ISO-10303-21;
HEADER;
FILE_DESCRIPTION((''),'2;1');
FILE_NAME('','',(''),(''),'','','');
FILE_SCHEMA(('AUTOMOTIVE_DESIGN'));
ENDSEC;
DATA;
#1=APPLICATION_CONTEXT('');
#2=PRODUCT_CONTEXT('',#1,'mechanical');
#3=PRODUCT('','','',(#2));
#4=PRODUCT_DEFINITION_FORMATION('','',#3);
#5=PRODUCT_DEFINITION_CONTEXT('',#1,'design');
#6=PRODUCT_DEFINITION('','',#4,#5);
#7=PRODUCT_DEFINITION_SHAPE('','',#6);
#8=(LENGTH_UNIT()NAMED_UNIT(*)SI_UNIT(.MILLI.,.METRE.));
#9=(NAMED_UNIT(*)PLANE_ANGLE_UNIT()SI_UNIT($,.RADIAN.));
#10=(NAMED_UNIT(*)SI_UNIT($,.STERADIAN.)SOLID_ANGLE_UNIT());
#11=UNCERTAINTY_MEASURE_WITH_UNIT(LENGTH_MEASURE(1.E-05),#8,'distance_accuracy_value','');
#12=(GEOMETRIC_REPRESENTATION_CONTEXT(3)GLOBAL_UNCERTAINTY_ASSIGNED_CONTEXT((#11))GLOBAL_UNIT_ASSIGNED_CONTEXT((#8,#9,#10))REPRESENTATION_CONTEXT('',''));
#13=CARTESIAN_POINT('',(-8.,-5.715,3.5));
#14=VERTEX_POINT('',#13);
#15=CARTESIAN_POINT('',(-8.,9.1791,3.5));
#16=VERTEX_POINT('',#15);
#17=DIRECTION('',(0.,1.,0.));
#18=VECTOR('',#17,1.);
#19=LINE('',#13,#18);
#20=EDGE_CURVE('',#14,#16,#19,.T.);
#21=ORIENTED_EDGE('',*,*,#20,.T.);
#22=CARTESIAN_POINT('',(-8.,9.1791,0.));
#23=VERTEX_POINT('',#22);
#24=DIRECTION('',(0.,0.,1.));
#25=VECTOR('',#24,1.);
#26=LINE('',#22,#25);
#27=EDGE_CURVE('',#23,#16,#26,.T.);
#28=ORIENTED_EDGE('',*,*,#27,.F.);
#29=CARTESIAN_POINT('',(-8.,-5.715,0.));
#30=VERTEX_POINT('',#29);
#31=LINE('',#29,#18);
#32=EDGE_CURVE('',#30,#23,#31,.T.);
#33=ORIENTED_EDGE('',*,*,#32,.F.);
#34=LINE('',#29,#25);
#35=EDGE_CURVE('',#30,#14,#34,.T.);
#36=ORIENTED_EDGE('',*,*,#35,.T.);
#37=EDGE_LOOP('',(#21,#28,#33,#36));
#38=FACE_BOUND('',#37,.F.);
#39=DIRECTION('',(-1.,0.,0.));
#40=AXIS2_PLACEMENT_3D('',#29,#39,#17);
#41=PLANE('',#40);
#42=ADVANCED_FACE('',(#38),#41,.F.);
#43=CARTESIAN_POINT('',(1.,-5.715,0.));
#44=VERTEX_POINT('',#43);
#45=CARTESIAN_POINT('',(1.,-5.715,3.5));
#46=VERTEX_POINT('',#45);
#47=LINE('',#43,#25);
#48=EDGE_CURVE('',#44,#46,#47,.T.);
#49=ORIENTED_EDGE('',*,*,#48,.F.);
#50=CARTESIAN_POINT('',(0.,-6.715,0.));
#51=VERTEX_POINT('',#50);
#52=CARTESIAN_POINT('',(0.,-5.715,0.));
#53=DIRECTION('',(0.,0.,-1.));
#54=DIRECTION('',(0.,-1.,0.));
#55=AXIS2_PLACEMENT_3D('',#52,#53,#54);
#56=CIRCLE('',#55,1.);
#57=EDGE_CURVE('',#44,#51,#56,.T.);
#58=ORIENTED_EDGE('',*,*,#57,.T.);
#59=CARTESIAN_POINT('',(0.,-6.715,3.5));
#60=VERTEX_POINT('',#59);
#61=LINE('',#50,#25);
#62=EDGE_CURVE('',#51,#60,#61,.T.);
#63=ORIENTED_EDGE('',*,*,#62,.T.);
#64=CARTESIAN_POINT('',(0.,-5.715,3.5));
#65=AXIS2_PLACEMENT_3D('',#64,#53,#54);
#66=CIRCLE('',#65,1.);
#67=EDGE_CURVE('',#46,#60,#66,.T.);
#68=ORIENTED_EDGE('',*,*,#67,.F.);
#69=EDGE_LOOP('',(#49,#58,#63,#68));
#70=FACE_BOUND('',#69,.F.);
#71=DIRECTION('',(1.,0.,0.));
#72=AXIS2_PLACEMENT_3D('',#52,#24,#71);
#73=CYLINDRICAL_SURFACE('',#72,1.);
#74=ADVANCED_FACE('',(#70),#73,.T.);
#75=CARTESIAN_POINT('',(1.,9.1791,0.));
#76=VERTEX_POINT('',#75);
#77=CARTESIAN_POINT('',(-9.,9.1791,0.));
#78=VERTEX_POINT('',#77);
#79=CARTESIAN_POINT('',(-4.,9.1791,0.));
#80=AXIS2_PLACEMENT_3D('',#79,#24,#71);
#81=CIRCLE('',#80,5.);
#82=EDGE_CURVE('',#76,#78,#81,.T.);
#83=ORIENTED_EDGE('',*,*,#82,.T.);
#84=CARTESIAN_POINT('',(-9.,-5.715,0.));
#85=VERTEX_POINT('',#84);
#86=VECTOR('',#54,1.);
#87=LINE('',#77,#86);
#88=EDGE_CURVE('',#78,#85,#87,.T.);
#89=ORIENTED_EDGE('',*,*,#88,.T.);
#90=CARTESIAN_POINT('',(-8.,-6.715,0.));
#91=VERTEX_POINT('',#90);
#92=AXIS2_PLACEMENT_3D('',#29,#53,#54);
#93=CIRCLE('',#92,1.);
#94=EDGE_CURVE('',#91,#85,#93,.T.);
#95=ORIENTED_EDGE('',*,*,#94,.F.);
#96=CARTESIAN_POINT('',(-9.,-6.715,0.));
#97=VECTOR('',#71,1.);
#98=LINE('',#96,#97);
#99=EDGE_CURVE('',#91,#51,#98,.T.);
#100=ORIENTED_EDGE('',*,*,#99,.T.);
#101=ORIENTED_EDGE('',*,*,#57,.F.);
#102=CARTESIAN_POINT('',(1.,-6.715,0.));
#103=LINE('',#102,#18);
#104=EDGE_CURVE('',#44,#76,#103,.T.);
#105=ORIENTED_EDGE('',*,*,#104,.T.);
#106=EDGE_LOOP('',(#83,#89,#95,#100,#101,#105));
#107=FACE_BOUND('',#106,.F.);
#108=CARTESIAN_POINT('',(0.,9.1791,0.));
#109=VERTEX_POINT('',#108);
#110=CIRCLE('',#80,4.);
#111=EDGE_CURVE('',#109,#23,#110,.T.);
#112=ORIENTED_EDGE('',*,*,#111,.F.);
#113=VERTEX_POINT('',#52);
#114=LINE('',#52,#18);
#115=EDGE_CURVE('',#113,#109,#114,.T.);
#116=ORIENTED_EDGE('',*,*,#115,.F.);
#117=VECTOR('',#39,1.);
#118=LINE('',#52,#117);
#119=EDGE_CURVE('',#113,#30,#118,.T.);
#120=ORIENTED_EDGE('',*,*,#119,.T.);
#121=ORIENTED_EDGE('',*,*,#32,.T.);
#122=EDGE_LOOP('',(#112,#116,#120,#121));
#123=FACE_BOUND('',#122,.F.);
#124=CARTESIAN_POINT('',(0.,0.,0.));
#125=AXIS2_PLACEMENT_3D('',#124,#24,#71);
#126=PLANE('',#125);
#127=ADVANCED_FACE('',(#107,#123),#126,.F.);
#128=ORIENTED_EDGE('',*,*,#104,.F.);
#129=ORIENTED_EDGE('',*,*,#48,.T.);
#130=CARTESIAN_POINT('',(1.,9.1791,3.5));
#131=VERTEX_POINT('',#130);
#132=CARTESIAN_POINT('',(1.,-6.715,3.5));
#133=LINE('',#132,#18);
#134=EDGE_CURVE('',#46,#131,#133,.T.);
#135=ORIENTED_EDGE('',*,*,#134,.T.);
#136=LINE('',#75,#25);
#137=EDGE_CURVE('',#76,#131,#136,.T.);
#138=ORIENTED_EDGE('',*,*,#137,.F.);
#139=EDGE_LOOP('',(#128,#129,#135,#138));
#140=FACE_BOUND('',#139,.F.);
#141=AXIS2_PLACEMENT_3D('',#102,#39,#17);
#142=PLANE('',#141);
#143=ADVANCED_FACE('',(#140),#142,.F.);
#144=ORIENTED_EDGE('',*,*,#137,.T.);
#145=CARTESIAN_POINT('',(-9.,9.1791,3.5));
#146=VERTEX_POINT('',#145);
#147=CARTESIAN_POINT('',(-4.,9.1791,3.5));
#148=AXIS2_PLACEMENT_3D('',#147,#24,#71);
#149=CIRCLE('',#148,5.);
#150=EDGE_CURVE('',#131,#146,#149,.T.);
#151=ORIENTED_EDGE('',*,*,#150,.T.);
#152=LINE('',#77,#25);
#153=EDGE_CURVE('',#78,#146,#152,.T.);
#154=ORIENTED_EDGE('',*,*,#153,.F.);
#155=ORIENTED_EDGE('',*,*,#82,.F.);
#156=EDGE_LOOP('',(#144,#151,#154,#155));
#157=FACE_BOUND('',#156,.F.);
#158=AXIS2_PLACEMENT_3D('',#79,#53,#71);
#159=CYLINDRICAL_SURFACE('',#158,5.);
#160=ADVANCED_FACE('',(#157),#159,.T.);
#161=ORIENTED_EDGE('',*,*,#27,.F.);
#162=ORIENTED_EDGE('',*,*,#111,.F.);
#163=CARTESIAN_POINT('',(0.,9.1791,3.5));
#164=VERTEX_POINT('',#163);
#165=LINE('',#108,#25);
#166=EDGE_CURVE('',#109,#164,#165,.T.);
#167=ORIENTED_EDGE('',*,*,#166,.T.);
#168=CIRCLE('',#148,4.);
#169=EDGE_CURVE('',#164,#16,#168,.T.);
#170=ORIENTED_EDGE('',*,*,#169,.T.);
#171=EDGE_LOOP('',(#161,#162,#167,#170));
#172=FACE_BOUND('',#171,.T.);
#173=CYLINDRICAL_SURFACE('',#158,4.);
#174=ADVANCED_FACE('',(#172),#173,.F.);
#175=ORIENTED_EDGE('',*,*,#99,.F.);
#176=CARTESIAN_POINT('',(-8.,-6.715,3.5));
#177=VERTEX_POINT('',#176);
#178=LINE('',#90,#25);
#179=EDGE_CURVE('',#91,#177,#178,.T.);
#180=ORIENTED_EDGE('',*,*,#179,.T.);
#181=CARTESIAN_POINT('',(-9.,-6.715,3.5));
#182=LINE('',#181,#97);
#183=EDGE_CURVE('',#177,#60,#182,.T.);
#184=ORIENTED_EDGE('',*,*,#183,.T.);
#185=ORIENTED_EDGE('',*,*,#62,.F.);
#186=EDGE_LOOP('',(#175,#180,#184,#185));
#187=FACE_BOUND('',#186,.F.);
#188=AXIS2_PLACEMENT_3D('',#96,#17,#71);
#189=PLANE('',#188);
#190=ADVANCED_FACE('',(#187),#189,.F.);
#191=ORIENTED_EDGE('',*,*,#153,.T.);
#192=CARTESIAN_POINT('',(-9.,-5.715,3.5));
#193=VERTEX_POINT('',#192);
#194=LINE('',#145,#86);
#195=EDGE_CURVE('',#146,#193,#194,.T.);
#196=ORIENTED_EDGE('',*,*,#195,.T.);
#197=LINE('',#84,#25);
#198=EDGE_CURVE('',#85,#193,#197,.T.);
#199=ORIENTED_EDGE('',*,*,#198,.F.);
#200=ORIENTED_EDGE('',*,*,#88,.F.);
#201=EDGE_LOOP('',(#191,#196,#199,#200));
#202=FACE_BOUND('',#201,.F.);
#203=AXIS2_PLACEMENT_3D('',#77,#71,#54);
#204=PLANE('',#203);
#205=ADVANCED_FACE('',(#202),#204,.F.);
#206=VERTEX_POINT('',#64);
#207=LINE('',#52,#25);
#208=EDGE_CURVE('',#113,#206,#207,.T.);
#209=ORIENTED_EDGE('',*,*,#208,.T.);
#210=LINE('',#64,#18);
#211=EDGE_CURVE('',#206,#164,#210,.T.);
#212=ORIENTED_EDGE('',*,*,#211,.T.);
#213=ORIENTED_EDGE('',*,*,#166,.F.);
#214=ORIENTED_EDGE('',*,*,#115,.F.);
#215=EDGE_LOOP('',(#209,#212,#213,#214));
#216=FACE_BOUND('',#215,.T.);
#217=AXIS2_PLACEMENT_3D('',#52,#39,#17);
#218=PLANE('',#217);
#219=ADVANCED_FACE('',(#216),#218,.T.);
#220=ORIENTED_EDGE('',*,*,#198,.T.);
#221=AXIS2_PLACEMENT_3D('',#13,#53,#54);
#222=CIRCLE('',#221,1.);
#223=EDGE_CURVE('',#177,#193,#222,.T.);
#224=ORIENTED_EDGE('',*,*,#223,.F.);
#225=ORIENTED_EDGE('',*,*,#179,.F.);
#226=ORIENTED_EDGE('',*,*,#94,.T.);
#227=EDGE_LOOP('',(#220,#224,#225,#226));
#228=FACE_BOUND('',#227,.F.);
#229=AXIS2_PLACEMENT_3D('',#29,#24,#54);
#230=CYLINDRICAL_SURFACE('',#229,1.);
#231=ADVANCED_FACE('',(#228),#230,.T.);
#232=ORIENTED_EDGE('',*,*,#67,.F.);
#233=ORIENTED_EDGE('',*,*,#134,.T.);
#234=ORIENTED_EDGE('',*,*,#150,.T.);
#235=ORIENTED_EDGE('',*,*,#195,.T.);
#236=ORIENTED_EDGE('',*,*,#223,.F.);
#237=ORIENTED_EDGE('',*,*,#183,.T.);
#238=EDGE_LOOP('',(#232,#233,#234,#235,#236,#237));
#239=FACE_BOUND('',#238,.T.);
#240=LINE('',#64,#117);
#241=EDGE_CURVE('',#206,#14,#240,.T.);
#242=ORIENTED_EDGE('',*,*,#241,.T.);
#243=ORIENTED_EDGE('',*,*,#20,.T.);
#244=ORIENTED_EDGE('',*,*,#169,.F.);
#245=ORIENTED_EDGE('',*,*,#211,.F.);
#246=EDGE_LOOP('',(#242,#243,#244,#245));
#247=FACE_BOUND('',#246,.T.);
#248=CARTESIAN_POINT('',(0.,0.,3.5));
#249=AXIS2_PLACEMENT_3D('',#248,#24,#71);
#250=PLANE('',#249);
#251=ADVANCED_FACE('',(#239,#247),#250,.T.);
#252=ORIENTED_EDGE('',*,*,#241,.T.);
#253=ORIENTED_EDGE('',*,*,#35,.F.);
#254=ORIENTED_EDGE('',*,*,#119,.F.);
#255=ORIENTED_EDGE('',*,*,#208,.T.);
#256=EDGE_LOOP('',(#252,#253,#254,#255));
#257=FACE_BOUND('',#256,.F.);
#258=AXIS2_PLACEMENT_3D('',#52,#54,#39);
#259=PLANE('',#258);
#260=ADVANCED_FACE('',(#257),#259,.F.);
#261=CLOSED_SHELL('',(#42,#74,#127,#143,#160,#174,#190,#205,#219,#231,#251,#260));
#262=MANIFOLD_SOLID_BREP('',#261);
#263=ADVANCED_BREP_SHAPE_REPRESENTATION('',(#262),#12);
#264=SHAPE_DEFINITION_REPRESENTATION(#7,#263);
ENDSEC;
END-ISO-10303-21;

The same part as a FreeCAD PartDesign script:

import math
import FreeCAD as App
import Part
import Sketcher

V = App.Vector
Q = App.Units.Quantity


def edges_at(feature, points):
    """Names of the edges that pass closest to the given points."""
    edges = feature.Shape.Edges
    near = lambda p: min(range(len(edges)), key=lambda i: edges[i].distToShape(Part.Vertex(*p))[0])
    return sorted({f"Edge{near(p) + 1}" for p in points})

doc = App.newDocument("Part")
body = doc.addObject("PartDesign::Body", "Body")

# Sketch on XY plane
sketch1 = body.newObject("Sketcher::SketchObject", "Sketch")
sketch1.AttachmentSupport = (doc.getObject("XY_Plane"), [""])
sketch1.MapMode = "FlatFace"
sketch1.addGeometry([
    Part.ArcOfCircle(Part.Circle(V(-4, 9.1791, 0), V(0, 0, 1), 5), math.radians(0), math.radians(180)),  # 0
    Part.LineSegment(V(-9, 9.1791, 0), V(-9, -6.715, 0)),  # 1
    Part.LineSegment(V(-9, -6.715, 0), V(1, -6.715, 0)),  # 2
    Part.LineSegment(V(1, -6.715, 0), V(1, 9.1791, 0)),  # 3
    Part.LineSegment(V(0, -5.715, 0), V(-8, -5.715, 0)),  # 4
    Part.LineSegment(V(-8, -5.715, 0), V(-8, 9.1791, 0)),  # 5
    Part.ArcOfCircle(Part.Circle(V(-4, 9.1791, 0), V(0, 0, 1), 4), math.radians(0), math.radians(180)),  # 6
    Part.LineSegment(V(0, 9.1791, 0), V(0, -5.715, 0)),  # 7
], False)
sketch1.addConstraint([
    Sketcher.Constraint("Tangent", 0, 2, 1, 1),
    Sketcher.Constraint("Coincident", 1, 2, 2, 1),
    Sketcher.Constraint("Coincident", 2, 2, 3, 1),
    Sketcher.Constraint("Tangent", 3, 2, 0, 1),
    Sketcher.Constraint("Coincident", 4, 2, 5, 1),
    Sketcher.Constraint("Tangent", 5, 2, 6, 2),
    Sketcher.Constraint("Tangent", 6, 1, 7, 1),
    Sketcher.Constraint("Coincident", 7, 2, 4, 1),
    Sketcher.Constraint("Vertical", 1),
    Sketcher.Constraint("Horizontal", 2),
    Sketcher.Constraint("Vertical", 3),
    Sketcher.Constraint("Horizontal", 4),
    Sketcher.Constraint("Vertical", 5),
    Sketcher.Constraint("Vertical", 7),
    Sketcher.Constraint("Coincident", 6, 3, 0, 3),
    Sketcher.Constraint("PointOnObject", 6, 1, -2),
    Sketcher.Constraint("DistanceX", -1, 1, 2, 2, Q("1 mm")),
    Sketcher.Constraint("Radius", 0, Q("5 mm")),
    Sketcher.Constraint("DistanceY", 1, 2, 4, 2, Q("1 mm")),
    Sketcher.Constraint("DistanceY", 1, 2, 1, 1, Q("15.894 mm")),
    Sketcher.Constraint("DistanceY", -1, 1, 0, 3, Q("9.179 mm")),
])
pad1 = body.newObject("PartDesign::Pad", "Pad")
pad1.Profile = sketch1
pad1.Length = 3.5
doc.recompute()

fillet = body.newObject("PartDesign::Fillet", "Fillet")
fillet.Base = (pad1, edges_at(pad1, [(-9, -6.715, 1.75), (1, -6.715, 1.75)]))
fillet.Radius = 1

doc.recompute()
